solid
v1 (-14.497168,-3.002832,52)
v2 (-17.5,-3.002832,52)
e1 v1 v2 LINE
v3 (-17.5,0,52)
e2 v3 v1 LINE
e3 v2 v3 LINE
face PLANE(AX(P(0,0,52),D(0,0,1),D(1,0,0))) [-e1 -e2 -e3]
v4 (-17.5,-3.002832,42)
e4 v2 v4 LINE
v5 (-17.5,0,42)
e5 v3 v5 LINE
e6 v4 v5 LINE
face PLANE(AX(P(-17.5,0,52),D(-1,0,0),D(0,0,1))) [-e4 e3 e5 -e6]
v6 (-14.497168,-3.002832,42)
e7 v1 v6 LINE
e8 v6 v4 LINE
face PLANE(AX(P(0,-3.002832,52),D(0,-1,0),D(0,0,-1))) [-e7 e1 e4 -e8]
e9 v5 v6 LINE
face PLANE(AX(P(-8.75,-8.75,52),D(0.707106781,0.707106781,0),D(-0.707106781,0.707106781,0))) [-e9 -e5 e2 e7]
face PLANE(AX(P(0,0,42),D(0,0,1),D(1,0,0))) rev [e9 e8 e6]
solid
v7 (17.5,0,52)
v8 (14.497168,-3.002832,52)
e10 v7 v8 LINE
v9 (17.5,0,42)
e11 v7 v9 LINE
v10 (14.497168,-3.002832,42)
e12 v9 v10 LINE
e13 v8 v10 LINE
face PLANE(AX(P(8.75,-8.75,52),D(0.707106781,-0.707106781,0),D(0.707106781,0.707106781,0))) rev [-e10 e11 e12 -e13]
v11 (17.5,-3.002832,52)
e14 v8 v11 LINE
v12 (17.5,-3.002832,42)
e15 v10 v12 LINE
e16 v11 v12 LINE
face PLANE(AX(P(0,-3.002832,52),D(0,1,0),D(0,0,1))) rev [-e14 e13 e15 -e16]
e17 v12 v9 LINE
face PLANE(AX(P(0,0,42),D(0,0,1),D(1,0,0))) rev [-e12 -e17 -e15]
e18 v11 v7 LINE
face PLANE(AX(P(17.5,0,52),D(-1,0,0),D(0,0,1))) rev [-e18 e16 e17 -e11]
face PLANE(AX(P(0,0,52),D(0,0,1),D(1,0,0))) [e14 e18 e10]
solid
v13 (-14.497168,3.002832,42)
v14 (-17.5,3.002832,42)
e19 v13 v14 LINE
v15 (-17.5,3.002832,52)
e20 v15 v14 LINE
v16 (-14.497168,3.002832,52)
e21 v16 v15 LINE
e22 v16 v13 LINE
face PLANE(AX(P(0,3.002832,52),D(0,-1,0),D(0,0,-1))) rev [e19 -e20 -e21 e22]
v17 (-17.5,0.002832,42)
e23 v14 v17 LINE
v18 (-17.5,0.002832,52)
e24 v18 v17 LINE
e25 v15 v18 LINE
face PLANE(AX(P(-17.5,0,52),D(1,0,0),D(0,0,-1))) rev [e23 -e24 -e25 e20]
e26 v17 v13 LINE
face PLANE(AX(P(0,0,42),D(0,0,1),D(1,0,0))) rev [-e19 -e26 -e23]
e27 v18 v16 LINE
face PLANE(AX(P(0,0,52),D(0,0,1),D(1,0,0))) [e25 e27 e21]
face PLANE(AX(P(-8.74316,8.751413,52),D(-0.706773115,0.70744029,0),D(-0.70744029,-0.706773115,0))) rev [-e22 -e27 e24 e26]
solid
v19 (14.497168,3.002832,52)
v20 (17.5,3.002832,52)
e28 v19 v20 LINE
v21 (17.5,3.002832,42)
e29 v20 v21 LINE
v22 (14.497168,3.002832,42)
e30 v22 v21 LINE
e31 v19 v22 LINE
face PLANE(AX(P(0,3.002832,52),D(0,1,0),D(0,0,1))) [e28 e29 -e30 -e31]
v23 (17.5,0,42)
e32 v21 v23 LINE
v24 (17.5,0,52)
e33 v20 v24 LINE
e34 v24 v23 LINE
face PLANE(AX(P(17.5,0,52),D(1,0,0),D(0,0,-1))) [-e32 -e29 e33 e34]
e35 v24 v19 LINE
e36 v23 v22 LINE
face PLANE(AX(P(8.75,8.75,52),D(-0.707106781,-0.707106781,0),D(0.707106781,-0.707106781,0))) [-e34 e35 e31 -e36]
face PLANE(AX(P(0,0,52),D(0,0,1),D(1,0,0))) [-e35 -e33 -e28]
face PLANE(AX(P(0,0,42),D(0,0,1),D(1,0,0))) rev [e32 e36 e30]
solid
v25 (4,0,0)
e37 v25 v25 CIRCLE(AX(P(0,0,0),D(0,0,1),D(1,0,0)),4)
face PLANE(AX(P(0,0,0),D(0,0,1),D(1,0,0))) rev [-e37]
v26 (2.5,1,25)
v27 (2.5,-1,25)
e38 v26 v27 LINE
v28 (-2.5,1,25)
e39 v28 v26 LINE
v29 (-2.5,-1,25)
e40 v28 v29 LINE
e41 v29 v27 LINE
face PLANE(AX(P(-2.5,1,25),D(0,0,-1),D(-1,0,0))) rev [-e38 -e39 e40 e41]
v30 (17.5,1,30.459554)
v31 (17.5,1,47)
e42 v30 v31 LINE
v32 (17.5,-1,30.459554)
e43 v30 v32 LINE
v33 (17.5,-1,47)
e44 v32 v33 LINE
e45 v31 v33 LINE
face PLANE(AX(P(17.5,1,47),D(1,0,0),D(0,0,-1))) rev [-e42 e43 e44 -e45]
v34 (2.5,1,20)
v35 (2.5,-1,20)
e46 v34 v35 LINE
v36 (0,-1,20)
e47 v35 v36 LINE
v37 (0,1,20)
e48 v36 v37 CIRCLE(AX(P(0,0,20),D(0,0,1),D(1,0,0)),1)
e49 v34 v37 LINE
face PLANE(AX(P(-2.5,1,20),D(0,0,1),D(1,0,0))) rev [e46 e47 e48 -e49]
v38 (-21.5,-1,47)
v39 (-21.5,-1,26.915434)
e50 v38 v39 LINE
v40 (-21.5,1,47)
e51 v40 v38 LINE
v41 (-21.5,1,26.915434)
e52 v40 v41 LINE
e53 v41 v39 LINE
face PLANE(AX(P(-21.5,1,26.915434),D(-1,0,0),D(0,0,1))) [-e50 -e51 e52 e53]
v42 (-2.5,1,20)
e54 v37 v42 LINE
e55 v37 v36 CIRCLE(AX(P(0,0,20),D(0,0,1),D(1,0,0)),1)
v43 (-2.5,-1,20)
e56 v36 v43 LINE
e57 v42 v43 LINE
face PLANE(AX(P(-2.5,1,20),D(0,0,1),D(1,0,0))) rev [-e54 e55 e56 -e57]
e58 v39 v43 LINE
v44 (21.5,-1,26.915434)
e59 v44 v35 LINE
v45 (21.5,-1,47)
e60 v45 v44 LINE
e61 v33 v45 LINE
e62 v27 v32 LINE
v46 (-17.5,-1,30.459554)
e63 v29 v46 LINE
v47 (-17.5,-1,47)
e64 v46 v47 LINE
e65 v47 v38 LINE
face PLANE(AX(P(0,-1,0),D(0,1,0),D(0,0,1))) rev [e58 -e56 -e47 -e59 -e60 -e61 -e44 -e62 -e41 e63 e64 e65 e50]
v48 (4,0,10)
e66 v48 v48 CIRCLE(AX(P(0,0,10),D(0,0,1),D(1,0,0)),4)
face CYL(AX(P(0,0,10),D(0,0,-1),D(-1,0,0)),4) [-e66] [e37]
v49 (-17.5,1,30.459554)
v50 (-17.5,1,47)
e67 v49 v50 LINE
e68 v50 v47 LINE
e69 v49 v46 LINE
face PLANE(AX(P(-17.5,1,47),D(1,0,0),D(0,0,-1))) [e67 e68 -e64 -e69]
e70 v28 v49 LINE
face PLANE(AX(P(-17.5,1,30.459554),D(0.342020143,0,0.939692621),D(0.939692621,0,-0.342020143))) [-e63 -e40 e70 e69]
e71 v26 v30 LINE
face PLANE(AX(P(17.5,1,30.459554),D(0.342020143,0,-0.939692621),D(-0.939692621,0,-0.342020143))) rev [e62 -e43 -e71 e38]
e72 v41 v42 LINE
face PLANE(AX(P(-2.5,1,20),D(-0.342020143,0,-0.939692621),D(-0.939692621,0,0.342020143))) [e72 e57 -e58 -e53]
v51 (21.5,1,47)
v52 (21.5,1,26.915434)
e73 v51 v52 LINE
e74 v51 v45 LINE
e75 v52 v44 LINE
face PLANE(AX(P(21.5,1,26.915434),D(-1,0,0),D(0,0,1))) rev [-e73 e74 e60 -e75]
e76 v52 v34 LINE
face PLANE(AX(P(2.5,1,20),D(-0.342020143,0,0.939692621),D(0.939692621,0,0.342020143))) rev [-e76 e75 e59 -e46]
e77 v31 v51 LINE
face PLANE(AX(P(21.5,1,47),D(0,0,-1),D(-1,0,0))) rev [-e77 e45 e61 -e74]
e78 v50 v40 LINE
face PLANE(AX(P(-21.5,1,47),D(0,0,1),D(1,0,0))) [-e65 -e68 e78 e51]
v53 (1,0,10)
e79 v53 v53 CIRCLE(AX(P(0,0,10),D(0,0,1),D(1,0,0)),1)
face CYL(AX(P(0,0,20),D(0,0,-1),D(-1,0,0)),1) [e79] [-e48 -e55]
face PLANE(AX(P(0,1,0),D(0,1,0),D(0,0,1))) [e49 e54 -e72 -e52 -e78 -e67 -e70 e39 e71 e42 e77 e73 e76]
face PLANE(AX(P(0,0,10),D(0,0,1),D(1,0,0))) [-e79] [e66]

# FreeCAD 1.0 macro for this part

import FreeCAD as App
import Part
import Sketcher

V = App.Vector
Q = App.Units.Quantity


def add_polygon(sketch, points):
    """Adds a closed chain of lines whose ends are joined by coincident constraints."""
    first, n = sketch.GeometryCount, len(points)
    for a, b in zip(points, points[1:] + points[:1]):
        sketch.addGeometry(Part.LineSegment(App.Vector(*a, 0), App.Vector(*b, 0)), False)
    for i in range(n):
        sketch.addConstraint(Sketcher.Constraint("Coincident", first + i, 2, first + (i + 1) % n, 1))

doc = App.newDocument("Part")
body = doc.addObject("PartDesign::Body", "Body")

# Sketch on XY plane
sketch1 = doc.addObject("Sketcher::SketchObject", "Sketch")
body.addObject(sketch1)
sketch1.AttachmentSupport = (doc.XY_Plane, [""])
sketch1.MapMode = "FlatFace"
sketch1.addGeometry(Part.Circle(V(0, 0, 0), V(0, 0, 1), 4), False)
sketch1.addConstraint(Sketcher.Constraint("Coincident", 0, 3, -1, 1))
sketch1.addConstraint(Sketcher.Constraint("Diameter", 0, Q("8 mm")))
pad1 = doc.addObject("PartDesign::Pad", "Pad")
body.addObject(pad1)
pad1.Profile = sketch1
pad1.Length = 10

# Sketch on XY plane
sketch2 = doc.addObject("Sketcher::SketchObject", "Sketch001")
body.addObject(sketch2)
sketch2.AttachmentSupport = (doc.XY_Plane, [""])
sketch2.MapMode = "FlatFace"
sketch2.AttachmentOffset = App.Placement(V(0, 0, 10), App.Rotation())
sketch2.addGeometry(Part.Circle(V(0, 0, 0), V(0, 0, 1), 1), False)
sketch2.addConstraint(Sketcher.Constraint("Coincident", 0, 3, -1, 1))
sketch2.addConstraint(Sketcher.Constraint("Diameter", 0, Q("2 mm")))
pad2 = doc.addObject("PartDesign::Pad", "Pad001")
body.addObject(pad2)
pad2.Profile = sketch2
pad2.Length = 10

# Sketch on XZ plane
sketch3 = doc.addObject("Sketcher::SketchObject", "Sketch002")
body.addObject(sketch3)
sketch3.AttachmentSupport = (doc.XZ_Plane, [""])
sketch3.MapMode = "FlatFace"
add_polygon(sketch3, [(-2, 20), (-2, 25), (2, 25), (2, 20)])  # lines 0-3
sketch3.addConstraint(Sketcher.Constraint("Vertical", 0))
sketch3.addConstraint(Sketcher.Constraint("Horizontal", 1))
sketch3.addConstraint(Sketcher.Constraint("Vertical", 2))
sketch3.addConstraint(Sketcher.Constraint("Horizontal", 3))
sketch3.addConstraint(Sketcher.Constraint("Equal", 3, 0))
sketch3.addConstraint(Sketcher.Constraint("DistanceX", 1, 1, 1, 2, Q("5 mm")))
sketch3.addConstraint(Sketcher.Constraint("DistanceY", -1, 1, 0, 2, Q("25 mm")))
sketch3.addConstraint(Sketcher.Constraint("DistanceX", 0, 2, -1, 1, Q("2.5 mm")))
pad3 = doc.addObject("PartDesign::Pad", "Pad002")
body.addObject(pad3)
pad3.Profile = sketch3
pad3.Length = 2
pad3.Midplane = True

# Sketch on XZ plane
sketch4 = doc.addObject("Sketcher::SketchObject", "Sketch003")
body.addObject(sketch4)
sketch4.AttachmentSupport = (doc.XZ_Plane, [""])
sketch4.MapMode = "FlatFace"
add_polygon(sketch4, [(21.5, 26.9), (2.5, 20), (2.5, 25), (17.5, 30.5), (17.5, 47), (21.5, 47)])  # lines 0-5
sketch4.addConstraint(Sketcher.Constraint("Vertical", 1))
sketch4.addConstraint(Sketcher.Constraint("Vertical", 3))
sketch4.addConstraint(Sketcher.Constraint("Horizontal", 4))
sketch4.addConstraint(Sketcher.Constraint("Vertical", 5))
sketch4.addConstraint(Sketcher.Constraint("Parallel", 0, 2))
sketch4.addConstraint(Sketcher.Constraint("DistanceX", 4, 1, 4, 2, Q("4 mm")))
sketch4.addConstraint(Sketcher.Constraint("DistanceY", 1, 1, 1, 2, Q("5 mm")))
sketch4.addConstraint(Sketcher.Constraint("Angle", 0, Q("-160 deg")))
sketch4.addConstraint(Sketcher.Constraint("DistanceY", -1, 1, 0, 2, Q("20 mm")))
sketch4.addConstraint(Sketcher.Constraint("DistanceY", -1, 1, 3, 2, Q("47 mm")))
sketch4.addConstraint(Sketcher.Constraint("DistanceX", 1, 2, 2, 2, Q("15 mm")))
sketch4.addConstraint(Sketcher.Constraint("DistanceX", -1, 1, 0, 2, Q("2.5 mm")))
pad4 = doc.addObject("PartDesign::Pad", "Pad003")
body.addObject(pad4)
pad4.Profile = sketch4
pad4.Length = 2
pad4.Midplane = True
doc.recompute()

mirrored = doc.addObject("PartDesign::Mirrored", "Mirrored")
body.addObject(mirrored)
mirrored.Originals = [pad4]
mirrored.MirrorPlane = (doc.YZ_Plane, [""])
body.Tip = mirrored
body2 = doc.addObject("PartDesign::Body", "Body001")

# Sketch on XY plane
sketch5 = doc.addObject("Sketcher::SketchObject", "Sketch004")
body2.addObject(sketch5)
sketch5.AttachmentSupport = (doc.getObject("XY_Plane001"), [""])
sketch5.MapMode = "FlatFace"
sketch5.AttachmentOffset = App.Placement(V(0, 0, 47), App.Rotation())
add_polygon(sketch5, [(17.5, 0), (14.5, -3), (17.5, -3)])  # lines 0-2
sketch5.addConstraint(Sketcher.Constraint("Horizontal", 1))
sketch5.addConstraint(Sketcher.Constraint("Vertical", 2))
sketch5.addConstraint(Sketcher.Constraint("PointOnObject", 2, 2, -1))
sketch5.addConstraint(Sketcher.Constraint("Equal", 1, 2))
sketch5.addConstraint(Sketcher.Constraint("DistanceX", -1, 1, 1, 2, Q("17.5 mm")))
sketch5.addConstraint(Sketcher.Constraint("DistanceX", 1, 1, 1, 2, Q("3.002832 mm")))
pad5 = doc.addObject("PartDesign::Pad", "Pad004")
body2.addObject(pad5)
pad5.Profile = sketch5
pad5.Length = 10
pad5.Midplane = True
body3 = doc.addObject("PartDesign::Body", "Body002")

# Sketch on XY plane
sketch6 = doc.addObject("Sketcher::SketchObject", "Sketch005")
body3.addObject(sketch6)
sketch6.AttachmentSupport = (doc.getObject("XY_Plane002"), [""])
sketch6.MapMode = "FlatFace"
sketch6.AttachmentOffset = App.Placement(V(0, 0, 47), App.Rotation())
add_polygon(sketch6, [(17.5, 0), (17.5, 3), (14.5, 3)])  # lines 0-2
sketch6.addConstraint(Sketcher.Constraint("Vertical", 0))
sketch6.addConstraint(Sketcher.Constraint("Horizontal", 1))
sketch6.addConstraint(Sketcher.Constraint("PointOnObject", 2, 2, -1))
sketch6.addConstraint(Sketcher.Constraint("Equal", 1, 0))
sketch6.addConstraint(Sketcher.Constraint("DistanceX", -1, 1, 0, 2, Q("17.5 mm")))
sketch6.addConstraint(Sketcher.Constraint("DistanceX", 1, 2, 1, 1, Q("3.002832 mm")))
pad6 = doc.addObject("PartDesign::Pad", "Pad005")
body3.addObject(pad6)
pad6.Profile = sketch6
pad6.Length = 10
pad6.Midplane = True
body4 = doc.addObject("PartDesign::Body", "Body003")

# Sketch on XY plane
sketch7 = doc.addObject("Sketcher::SketchObject", "Sketch006")
body4.addObject(sketch7)
sketch7.AttachmentSupport = (doc.getObject("XY_Plane003"), [""])
sketch7.MapMode = "FlatFace"
sketch7.AttachmentOffset = App.Placement(V(0, 0, 47), App.Rotation())
add_polygon(sketch7, [(-17.5, 3), (-17.5, 0), (-14.5, 3)])  # lines 0-2
sketch7.addConstraint(Sketcher.Constraint("Vertical", 0))
sketch7.addConstraint(Sketcher.Constraint("Horizontal", 2))
sketch7.addConstraint(Sketcher.Constraint("DistanceY", 0, 2, 0, 1, Q("3 mm")))
sketch7.addConstraint(Sketcher.Constraint("DistanceX", 0, 2, -1, 1, Q("17.5 mm")))
sketch7.addConstraint(Sketcher.Constraint("DistanceX", 2, 2, 2, 1, Q("3.002832 mm")))
sketch7.addConstraint(Sketcher.Constraint("DistanceY", -1, 1, 0, 2, Q("0.002832 mm")))
pad7 = doc.addObject("PartDesign::Pad", "Pad006")
body4.addObject(pad7)
pad7.Profile = sketch7
pad7.Length = 10
pad7.Midplane = True
body5 = doc.addObject("PartDesign::Body", "Body004")

# Sketch on XY plane
sketch8 = doc.addObject("Sketcher::SketchObject", "Sketch007")
body5.addObject(sketch8)
sketch8.AttachmentSupport = (doc.getObject("XY_Plane004"), [""])
sketch8.MapMode = "FlatFace"
sketch8.AttachmentOffset = App.Placement(V(0, 0, 47), App.Rotation())
add_polygon(sketch8, [(-14.5, -3), (-17.5, 0), (-17.5, -3)])  # lines 0-2
sketch8.addConstraint(Sketcher.Constraint("Vertical", 1))
sketch8.addConstraint(Sketcher.Constraint("Horizontal", 2))
sketch8.addConstraint(Sketcher.Constraint("PointOnObject", 0, 2, -1))
sketch8.addConstraint(Sketcher.Constraint("Equal", 2, 1))
sketch8.addConstraint(Sketcher.Constraint("DistanceX", 0, 2, -1, 1, Q("17.5 mm")))
sketch8.addConstraint(Sketcher.Constraint("DistanceX", 2, 1, 2, 2, Q("3.002832 mm")))
pad8 = doc.addObject("PartDesign::Pad", "Pad007")
body5.addObject(pad8)
pad8.Profile = sketch8
pad8.Length = 10
pad8.Midplane = True

doc.recompute()
